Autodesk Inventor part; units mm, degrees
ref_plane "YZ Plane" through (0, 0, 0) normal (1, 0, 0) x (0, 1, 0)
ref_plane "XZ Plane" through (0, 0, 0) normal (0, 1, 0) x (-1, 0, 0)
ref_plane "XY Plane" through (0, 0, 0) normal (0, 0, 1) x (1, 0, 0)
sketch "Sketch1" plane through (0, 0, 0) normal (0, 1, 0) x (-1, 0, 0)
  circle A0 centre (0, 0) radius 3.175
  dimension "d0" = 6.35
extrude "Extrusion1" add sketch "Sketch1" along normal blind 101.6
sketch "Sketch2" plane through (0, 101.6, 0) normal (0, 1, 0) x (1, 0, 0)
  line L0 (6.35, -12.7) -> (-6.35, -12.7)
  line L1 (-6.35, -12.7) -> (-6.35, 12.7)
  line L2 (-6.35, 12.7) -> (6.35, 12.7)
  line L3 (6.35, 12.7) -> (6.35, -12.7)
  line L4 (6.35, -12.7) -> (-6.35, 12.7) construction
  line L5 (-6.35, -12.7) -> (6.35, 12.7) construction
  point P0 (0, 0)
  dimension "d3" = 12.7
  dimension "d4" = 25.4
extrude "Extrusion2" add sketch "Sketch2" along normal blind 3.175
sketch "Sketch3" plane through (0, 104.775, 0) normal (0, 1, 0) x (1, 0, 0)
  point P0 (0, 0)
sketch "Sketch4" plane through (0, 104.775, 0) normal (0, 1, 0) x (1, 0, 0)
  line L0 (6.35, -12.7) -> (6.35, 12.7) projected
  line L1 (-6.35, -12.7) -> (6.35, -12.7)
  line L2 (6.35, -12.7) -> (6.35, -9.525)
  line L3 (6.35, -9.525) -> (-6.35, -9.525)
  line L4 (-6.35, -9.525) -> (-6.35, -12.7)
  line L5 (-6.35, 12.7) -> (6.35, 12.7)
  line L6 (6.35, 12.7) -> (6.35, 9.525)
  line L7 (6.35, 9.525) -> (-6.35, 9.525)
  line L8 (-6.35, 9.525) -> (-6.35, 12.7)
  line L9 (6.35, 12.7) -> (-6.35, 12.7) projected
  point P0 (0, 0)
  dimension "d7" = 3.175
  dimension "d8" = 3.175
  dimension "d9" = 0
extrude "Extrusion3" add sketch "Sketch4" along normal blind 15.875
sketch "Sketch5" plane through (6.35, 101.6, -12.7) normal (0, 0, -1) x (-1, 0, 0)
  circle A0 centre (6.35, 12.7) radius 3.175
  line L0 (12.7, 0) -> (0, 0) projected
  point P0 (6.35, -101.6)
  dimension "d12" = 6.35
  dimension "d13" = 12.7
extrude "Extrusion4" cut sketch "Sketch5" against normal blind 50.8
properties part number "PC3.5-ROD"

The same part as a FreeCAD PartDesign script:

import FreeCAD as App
import Part
import Sketcher
from FreeCAD import Vector
Q = App.Units.Quantity


def add_polygon(sketch, points):
    """Adds a closed chain of lines whose ends are joined by coincident constraints."""
    first, n = sketch.GeometryCount, len(points)
    for a, b in zip(points, points[1:] + points[:1]):
        sketch.addGeometry(Part.LineSegment(App.Vector(*a, 0), App.Vector(*b, 0)), False)
    for i in range(n):
        sketch.addConstraint(Sketcher.Constraint("Coincident", first + i, 2, first + (i + 1) % n, 1))

doc = App.newDocument("Part")
body = doc.addObject("PartDesign::Body", "Body")

# Sketch on XZ plane
sketch1 = body.newObject("Sketcher::SketchObject", "Sketch")
sketch1.AttachmentSupport = (doc.getObject("XZ_Plane"), [""])
sketch1.MapMode = "FlatFace"
sketch1.addGeometry(Part.Circle(Vector(0, 0, 0), Vector(0, 0, 1), 3.175), False)
sketch1.addConstraint([
    Sketcher.Constraint("Coincident", 0, 3, -1, 1),
    Sketcher.Constraint("Diameter", 0, Q("0.25 in")),
])
pad1 = body.newObject("PartDesign::Pad", "Pad")
pad1.Profile = sketch1
pad1.Length = Q("4 in")
pad1.Reversed = True

# Sketch on XZ plane
sketch2 = body.newObject("Sketcher::SketchObject", "Sketch001")
sketch2.AttachmentSupport = (doc.getObject("XZ_Plane"), [""])
sketch2.MapMode = "FlatFace"
sketch2.AttachmentOffset = App.Placement(Vector(0, 0, -4 * 25.4), App.Rotation())
add_polygon(sketch2, [(-6.35, 12.7), (6.35, 12.7), (6.35, -12.7), (-6.35, -12.7)])  # lines 0-3
sketch2.addConstraint([
    Sketcher.Constraint("Horizontal", 0),
    Sketcher.Constraint("Vertical", 1),
    Sketcher.Constraint("Horizontal", 2),
    Sketcher.Constraint("Vertical", 3),
    Sketcher.Constraint("Symmetric", 0, 2, 2, 2, -1, 1),
    Sketcher.Constraint("DistanceY", 1, 2, 1, 1, Q("1 in")),
    Sketcher.Constraint("DistanceX", 0, 1, 0, 2, Q("0.5 in")),
])
pad2 = body.newObject("PartDesign::Pad", "Pad001")
pad2.Profile = sketch2
pad2.Length = Q("0.125 in")
pad2.Reversed = True

# Sketch on XZ plane
sketch3 = body.newObject("Sketcher::SketchObject", "Sketch002")
sketch3.AttachmentSupport = (doc.getObject("XZ_Plane"), [""])
sketch3.MapMode = "FlatFace"
sketch3.AttachmentOffset = App.Placement(Vector(0, 0, -4.125 * 25.4), App.Rotation())
add_polygon(sketch3, [(-6.35, 12.7), (6.35, 12.7), (6.35, 9.525), (-6.35, 9.525)])  # lines 0-3
add_polygon(sketch3, [(-6.35, -9.525), (6.35, -9.525), (6.35, -12.7), (-6.35, -12.7)])  # lines 4-7
sketch3.addConstraint([
    Sketcher.Constraint("Horizontal", 0),
    Sketcher.Constraint("Vertical", 1),
    Sketcher.Constraint("Horizontal", 2),
    Sketcher.Constraint("Vertical", 3),
    Sketcher.Constraint("Horizontal", 4),
    Sketcher.Constraint("Vertical", 5),
    Sketcher.Constraint("Horizontal", 6),
    Sketcher.Constraint("Vertical", 7),
    Sketcher.Constraint("Symmetric", 2, 2, 4, 2, -1, 1),
    Sketcher.Constraint("Symmetric", 0, 2, 6, 2, -1, 1),
    Sketcher.Constraint("Vertical", 1, 2, 4, 2),
    Sketcher.Constraint("DistanceY", 1, 2, 1, 1, Q("0.125 in")),
    Sketcher.Constraint("DistanceX", 0, 1, 0, 2, Q("0.5 in")),
    Sketcher.Constraint("DistanceY", 5, 2, 0, 2, Q("1 in")),
])
pad3 = body.newObject("PartDesign::Pad", "Pad002")
pad3.Profile = sketch3
pad3.Length = Q("0.625 in")
pad3.Reversed = True

# Sketch on XY plane
sketch4 = body.newObject("Sketcher::SketchObject", "Sketch003")
sketch4.AttachmentSupport = (doc.getObject("XY_Plane"), [""])
sketch4.MapMode = "FlatFace"
sketch4.AttachmentOffset = App.Placement(Vector(0, 0, -0.5 * 25.4), App.Rotation())
sketch4.addGeometry(Part.Circle(Vector(0, 114.3, 0), Vector(0, 0, 1), 3.175), False)
sketch4.addConstraint([
    Sketcher.Constraint("PointOnObject", 0, 3, -2),
    Sketcher.Constraint("Diameter", 0, Q("0.25 in")),
    Sketcher.Constraint("DistanceY", -1, 1, 0, 3, Q("4.5 in")),
])
pocket1 = body.newObject("PartDesign::Pocket", "Pocket")
pocket1.Profile = sketch4
pocket1.Length = Q("2 in")
pocket1.Reversed = True

doc.recompute()
